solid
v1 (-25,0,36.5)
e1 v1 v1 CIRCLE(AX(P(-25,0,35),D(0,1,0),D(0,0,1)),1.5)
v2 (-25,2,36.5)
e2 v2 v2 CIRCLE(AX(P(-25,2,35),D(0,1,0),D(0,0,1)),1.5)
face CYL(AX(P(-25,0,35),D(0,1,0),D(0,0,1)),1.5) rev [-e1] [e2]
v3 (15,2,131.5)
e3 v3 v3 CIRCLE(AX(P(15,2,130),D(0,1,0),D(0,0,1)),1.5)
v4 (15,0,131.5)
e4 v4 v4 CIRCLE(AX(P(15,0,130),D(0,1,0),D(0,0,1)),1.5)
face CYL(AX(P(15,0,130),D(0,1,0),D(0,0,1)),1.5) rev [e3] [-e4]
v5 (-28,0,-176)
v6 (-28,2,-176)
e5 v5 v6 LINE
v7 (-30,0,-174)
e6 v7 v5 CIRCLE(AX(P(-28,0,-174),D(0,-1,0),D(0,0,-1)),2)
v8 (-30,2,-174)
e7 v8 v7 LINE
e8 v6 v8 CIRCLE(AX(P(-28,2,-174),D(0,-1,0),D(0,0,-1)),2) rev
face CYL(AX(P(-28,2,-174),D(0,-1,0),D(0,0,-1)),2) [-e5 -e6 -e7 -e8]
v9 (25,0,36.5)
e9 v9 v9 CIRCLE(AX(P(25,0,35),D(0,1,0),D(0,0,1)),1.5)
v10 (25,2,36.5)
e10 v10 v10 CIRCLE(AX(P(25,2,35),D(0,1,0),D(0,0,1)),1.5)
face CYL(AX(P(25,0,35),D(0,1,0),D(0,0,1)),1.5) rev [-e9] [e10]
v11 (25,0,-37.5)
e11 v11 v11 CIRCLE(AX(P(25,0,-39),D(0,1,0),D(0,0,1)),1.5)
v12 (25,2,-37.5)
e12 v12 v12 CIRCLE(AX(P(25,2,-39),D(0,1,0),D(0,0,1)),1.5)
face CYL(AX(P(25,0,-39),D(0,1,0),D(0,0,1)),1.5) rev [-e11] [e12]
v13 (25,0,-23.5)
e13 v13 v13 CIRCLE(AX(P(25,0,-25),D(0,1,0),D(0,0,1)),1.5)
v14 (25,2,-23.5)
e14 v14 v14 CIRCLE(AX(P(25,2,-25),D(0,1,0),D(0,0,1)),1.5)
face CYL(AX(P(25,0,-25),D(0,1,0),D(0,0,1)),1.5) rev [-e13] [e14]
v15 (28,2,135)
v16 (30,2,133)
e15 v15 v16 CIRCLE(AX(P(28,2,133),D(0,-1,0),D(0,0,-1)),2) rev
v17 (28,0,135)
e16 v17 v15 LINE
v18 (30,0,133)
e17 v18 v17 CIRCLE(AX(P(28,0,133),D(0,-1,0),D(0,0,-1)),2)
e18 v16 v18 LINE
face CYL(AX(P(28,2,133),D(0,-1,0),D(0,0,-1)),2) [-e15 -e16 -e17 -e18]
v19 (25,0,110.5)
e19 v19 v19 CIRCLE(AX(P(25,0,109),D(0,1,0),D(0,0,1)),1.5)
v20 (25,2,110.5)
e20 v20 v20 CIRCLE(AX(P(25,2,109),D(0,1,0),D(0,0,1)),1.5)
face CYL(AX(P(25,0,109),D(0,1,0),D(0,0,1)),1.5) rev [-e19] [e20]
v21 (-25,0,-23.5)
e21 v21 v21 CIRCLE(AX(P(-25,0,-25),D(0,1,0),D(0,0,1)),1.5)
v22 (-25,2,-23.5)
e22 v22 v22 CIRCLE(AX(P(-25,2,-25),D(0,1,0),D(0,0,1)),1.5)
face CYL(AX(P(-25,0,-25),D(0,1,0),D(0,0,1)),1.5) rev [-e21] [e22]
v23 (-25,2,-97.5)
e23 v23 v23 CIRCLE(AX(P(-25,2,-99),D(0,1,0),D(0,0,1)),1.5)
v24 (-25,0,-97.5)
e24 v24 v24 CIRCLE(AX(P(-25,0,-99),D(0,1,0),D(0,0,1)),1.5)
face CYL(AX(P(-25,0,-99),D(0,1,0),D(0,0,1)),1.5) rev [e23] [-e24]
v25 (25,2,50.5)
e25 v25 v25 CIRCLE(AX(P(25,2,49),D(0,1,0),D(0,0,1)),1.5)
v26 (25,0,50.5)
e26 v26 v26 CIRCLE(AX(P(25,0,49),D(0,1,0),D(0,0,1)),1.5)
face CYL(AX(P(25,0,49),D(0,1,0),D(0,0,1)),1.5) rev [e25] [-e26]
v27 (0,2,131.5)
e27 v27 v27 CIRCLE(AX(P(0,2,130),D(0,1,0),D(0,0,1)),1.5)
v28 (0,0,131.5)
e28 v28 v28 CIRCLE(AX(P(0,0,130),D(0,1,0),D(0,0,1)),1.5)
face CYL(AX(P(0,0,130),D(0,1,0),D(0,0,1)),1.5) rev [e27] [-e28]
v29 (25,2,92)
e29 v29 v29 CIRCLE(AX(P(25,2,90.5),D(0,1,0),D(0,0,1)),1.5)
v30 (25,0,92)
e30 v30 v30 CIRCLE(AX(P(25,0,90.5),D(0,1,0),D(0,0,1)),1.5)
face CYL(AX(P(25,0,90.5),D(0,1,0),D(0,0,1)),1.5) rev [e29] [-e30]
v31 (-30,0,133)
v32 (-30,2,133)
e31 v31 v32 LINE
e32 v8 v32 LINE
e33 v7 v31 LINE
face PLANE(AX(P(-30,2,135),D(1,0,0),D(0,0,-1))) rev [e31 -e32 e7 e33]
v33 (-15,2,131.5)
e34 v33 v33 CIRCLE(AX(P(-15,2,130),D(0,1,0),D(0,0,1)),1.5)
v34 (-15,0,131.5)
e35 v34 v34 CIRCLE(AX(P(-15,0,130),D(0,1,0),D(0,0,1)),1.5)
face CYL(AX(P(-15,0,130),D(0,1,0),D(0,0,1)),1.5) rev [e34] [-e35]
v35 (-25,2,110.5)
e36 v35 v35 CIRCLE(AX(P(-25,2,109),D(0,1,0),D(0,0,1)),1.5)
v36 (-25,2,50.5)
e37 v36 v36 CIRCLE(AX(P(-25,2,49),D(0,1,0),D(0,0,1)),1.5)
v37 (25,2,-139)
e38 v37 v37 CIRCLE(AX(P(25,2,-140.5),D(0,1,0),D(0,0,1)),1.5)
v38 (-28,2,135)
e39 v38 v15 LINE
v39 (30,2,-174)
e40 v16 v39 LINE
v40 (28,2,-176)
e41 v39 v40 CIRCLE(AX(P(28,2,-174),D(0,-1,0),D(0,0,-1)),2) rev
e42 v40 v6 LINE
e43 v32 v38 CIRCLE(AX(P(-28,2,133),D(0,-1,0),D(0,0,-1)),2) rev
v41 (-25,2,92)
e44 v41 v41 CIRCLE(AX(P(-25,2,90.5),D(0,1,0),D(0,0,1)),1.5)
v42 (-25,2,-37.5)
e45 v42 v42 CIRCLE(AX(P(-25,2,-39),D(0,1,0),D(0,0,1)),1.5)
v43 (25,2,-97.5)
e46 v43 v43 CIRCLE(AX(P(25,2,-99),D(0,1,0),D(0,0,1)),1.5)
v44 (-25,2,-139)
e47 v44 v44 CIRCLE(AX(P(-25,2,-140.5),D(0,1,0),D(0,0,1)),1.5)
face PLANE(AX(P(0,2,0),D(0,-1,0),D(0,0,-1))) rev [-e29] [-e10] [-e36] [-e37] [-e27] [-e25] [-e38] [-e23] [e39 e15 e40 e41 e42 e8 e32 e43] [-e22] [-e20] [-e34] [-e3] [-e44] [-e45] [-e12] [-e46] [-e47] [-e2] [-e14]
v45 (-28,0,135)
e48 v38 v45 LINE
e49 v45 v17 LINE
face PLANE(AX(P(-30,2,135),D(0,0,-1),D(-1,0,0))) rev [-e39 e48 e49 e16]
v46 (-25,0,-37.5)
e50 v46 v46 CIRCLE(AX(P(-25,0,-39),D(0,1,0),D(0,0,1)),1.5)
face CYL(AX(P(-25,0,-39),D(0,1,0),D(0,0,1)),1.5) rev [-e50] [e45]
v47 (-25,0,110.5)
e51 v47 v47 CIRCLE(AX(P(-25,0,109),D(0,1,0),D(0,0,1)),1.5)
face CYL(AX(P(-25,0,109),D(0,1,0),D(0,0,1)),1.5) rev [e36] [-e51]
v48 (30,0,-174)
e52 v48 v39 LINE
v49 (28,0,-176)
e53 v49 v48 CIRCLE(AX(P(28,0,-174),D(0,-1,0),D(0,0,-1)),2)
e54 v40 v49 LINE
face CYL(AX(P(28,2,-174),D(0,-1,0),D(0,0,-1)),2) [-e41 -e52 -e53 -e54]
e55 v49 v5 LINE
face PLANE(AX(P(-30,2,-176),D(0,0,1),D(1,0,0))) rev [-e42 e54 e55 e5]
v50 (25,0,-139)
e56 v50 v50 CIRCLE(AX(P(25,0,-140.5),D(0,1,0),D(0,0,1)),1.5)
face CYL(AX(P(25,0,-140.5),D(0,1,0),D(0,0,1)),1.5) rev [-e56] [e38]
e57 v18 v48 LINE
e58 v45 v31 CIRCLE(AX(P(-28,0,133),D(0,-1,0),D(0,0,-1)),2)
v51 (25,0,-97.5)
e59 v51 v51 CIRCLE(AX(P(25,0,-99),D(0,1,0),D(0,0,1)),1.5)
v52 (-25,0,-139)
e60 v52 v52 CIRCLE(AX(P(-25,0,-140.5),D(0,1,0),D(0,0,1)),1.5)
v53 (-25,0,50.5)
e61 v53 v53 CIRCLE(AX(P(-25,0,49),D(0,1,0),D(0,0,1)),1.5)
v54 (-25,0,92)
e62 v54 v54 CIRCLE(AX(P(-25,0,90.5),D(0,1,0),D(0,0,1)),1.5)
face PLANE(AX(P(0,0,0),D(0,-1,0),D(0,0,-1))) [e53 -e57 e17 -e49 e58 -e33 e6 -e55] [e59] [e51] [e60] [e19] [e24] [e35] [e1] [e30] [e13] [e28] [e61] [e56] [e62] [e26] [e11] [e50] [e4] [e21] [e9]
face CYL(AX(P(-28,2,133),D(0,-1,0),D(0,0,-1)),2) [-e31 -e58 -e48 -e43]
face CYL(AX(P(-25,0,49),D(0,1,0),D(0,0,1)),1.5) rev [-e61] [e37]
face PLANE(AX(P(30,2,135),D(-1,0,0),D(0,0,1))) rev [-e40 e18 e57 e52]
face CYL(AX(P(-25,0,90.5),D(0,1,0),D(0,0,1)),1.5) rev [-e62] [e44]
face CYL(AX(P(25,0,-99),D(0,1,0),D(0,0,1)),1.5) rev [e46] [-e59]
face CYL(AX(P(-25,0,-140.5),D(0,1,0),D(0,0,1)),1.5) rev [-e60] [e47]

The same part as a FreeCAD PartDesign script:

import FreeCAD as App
import Part
import Sketcher
from FreeCAD import Vector
Q = App.Units.Quantity


def edges_at(feature, points):
    """Names of the edges that pass closest to the given points."""
    edges = feature.Shape.Edges
    near = lambda p: min(range(len(edges)), key=lambda i: edges[i].distToShape(Part.Vertex(*p))[0])
    return sorted({f"Edge{near(p) + 1}" for p in points})


def add_polygon(sketch, points):
    """Adds a closed chain of lines whose ends are joined by coincident constraints."""
    first, n = sketch.GeometryCount, len(points)
    for a, b in zip(points, points[1:] + points[:1]):
        sketch.addGeometry(Part.LineSegment(App.Vector(*a, 0), App.Vector(*b, 0)), False)
    for i in range(n):
        sketch.addConstraint(Sketcher.Constraint("Coincident", first + i, 2, first + (i + 1) % n, 1))

doc = App.newDocument("Part")
body = doc.addObject("PartDesign::Body", "Body")

# Sketch on XZ plane
sketch1 = body.newObject("Sketcher::SketchObject", "Sketch")
sketch1.AttachmentSupport = (doc.getObject("XZ_Plane"), [""])
sketch1.MapMode = "FlatFace"
add_polygon(sketch1, [(-30, -176), (-30, 135), (30, 135), (30, -176)])  # lines 0-3
sketch1.addConstraint(Sketcher.Constraint("Vertical", 0))
sketch1.addConstraint(Sketcher.Constraint("Horizontal", 1))
sketch1.addConstraint(Sketcher.Constraint("Vertical", 2))
sketch1.addConstraint(Sketcher.Constraint("Horizontal", 3))
sketch1.addConstraint(Sketcher.Constraint("DistanceX", 1, 1, 1, 2, Q("60 mm")))
sketch1.addConstraint(Sketcher.Constraint("DistanceY", 0, 1, 0, 2, Q("311 mm")))
sketch1.addConstraint(Sketcher.Constraint("DistanceX", 0, 2, -1, 1, Q("30 mm")))
sketch1.addConstraint(Sketcher.Constraint("DistanceY", -1, 1, 0, 2, Q("135 mm")))
pad1 = body.newObject("PartDesign::Pad", "Pad")
pad1.Profile = sketch1
pad1.Length = 2
pad1.Reversed = True

# Sketch on XZ plane
sketch2 = body.newObject("Sketcher::SketchObject", "Sketch001")
sketch2.AttachmentSupport = (doc.getObject("XZ_Plane"), [""])
sketch2.MapMode = "FlatFace"
sketch2.AttachmentOffset = App.Placement(Vector(0, 0, -2), App.Rotation())
sketch2.addGeometry(Part.Circle(Vector(-25, -99, 0), Vector(0, 0, 1), 1.5), False)
sketch2.addGeometry(Part.Circle(Vector(25, -99, 0), Vector(0, 0, 1), 1.5), False)
sketch2.addGeometry(Part.Circle(Vector(25, -39, 0), Vector(0, 0, 1), 1.5), False)
sketch2.addGeometry(Part.Circle(Vector(-25, -39, 0), Vector(0, 0, 1), 1.5), False)
sketch2.addGeometry(Part.Circle(Vector(-25, -25, 0), Vector(0, 0, 1), 1.5), False)
sketch2.addGeometry(Part.Circle(Vector(25, -25, 0), Vector(0, 0, 1), 1.5), False)
sketch2.addGeometry(Part.Circle(Vector(-25, 35, 0), Vector(0, 0, 1), 1.5), False)
sketch2.addGeometry(Part.Circle(Vector(25, 35, 0), Vector(0, 0, 1), 1.5), False)
sketch2.addGeometry(Part.Circle(Vector(25, 49, 0), Vector(0, 0, 1), 1.5), False)
sketch2.addGeometry(Part.Circle(Vector(-25, 49, 0), Vector(0, 0, 1), 1.5), False)
sketch2.addGeometry(Part.Circle(Vector(25, 109, 0), Vector(0, 0, 1), 1.5), False)
sketch2.addGeometry(Part.Circle(Vector(-25, 109, 0), Vector(0, 0, 1), 1.5), False)
sketch2.addConstraint(Sketcher.Constraint("Equal", 0, 1))
sketch2.addConstraint(Sketcher.Constraint("Equal", 1, 2))
sketch2.addConstraint(Sketcher.Constraint("Equal", 2, 3))
sketch2.addConstraint(Sketcher.Constraint("Equal", 3, 4))
sketch2.addConstraint(Sketcher.Constraint("Equal", 4, 5))
sketch2.addConstraint(Sketcher.Constraint("Equal", 5, 6))
sketch2.addConstraint(Sketcher.Constraint("Equal", 6, 7))
sketch2.addConstraint(Sketcher.Constraint("Equal", 7, 8))
sketch2.addConstraint(Sketcher.Constraint("Equal", 8, 9))
sketch2.addConstraint(Sketcher.Constraint("Equal", 9, 10))
sketch2.addConstraint(Sketcher.Constraint("Equal", 10, 11))
sketch2.addConstraint(Sketcher.Constraint("Symmetric", 0, 3, 1, 3, -2))
sketch2.addConstraint(Sketcher.Constraint("Symmetric", 2, 3, 3, 3, -2))
sketch2.addConstraint(Sketcher.Constraint("Symmetric", 4, 3, 5, 3, -2))
sketch2.addConstraint(Sketcher.Constraint("Symmetric", 6, 3, 7, 3, -2))
sketch2.addConstraint(Sketcher.Constraint("Symmetric", 8, 3, 9, 3, -2))
sketch2.addConstraint(Sketcher.Constraint("Symmetric", 10, 3, 11, 3, -2))
sketch2.addConstraint(Sketcher.Constraint("Vertical", 1, 3, 2, 3))
sketch2.addConstraint(Sketcher.Constraint("Vertical", 3, 3, 4, 3))
sketch2.addConstraint(Sketcher.Constraint("Vertical", 4, 3, 6, 3))
sketch2.addConstraint(Sketcher.Constraint("Vertical", 7, 3, 8, 3))
sketch2.addConstraint(Sketcher.Constraint("Vertical", 8, 3, 10, 3))
sketch2.addConstraint(Sketcher.Constraint("Diameter", 0, Q("3 mm")))
sketch2.addConstraint(Sketcher.Constraint("DistanceX", 0, 3, -1, 1, Q("25 mm")))
sketch2.addConstraint(Sketcher.Constraint("DistanceY", 0, 3, -1, 1, Q("99 mm")))
sketch2.addConstraint(Sketcher.Constraint("DistanceY", 2, 3, -1, 1, Q("39 mm")))
sketch2.addConstraint(Sketcher.Constraint("DistanceY", 4, 3, -1, 1, Q("25 mm")))
sketch2.addConstraint(Sketcher.Constraint("DistanceY", -1, 1, 6, 3, Q("35 mm")))
sketch2.addConstraint(Sketcher.Constraint("DistanceY", -1, 1, 8, 3, Q("49 mm")))
sketch2.addConstraint(Sketcher.Constraint("DistanceY", -1, 1, 10, 3, Q("109 mm")))
pocket1 = body.newObject("PartDesign::Pocket", "Pocket")
pocket1.Profile = sketch2
pocket1.Type = "ThroughAll"
pocket1.Reversed = True

# Sketch on XZ plane
sketch3 = body.newObject("Sketcher::SketchObject", "Sketch002")
sketch3.AttachmentSupport = (doc.getObject("XZ_Plane"), [""])
sketch3.MapMode = "FlatFace"
sketch3.AttachmentOffset = App.Placement(Vector(0, 0, -2), App.Rotation())
sketch3.addGeometry(Part.Circle(Vector(-25, 90.5, 0), Vector(0, 0, 1), 1.5), False)
sketch3.addGeometry(Part.Circle(Vector(25, 90.5, 0), Vector(0, 0, 1), 1.5), False)
sketch3.addGeometry(Part.Circle(Vector(-25, -140.5, 0), Vector(0, 0, 1), 1.5), False)
sketch3.addGeometry(Part.Circle(Vector(25, -140.5, 0), Vector(0, 0, 1), 1.5), False)
sketch3.addConstraint(Sketcher.Constraint("Equal", 0, 1))
sketch3.addConstraint(Sketcher.Constraint("Equal", 1, 2))
sketch3.addConstraint(Sketcher.Constraint("Equal", 2, 3))
sketch3.addConstraint(Sketcher.Constraint("Symmetric", 0, 3, 1, 3, -2))
sketch3.addConstraint(Sketcher.Constraint("Symmetric", 2, 3, 3, 3, -2))
sketch3.addConstraint(Sketcher.Constraint("Vertical", 0, 3, 2, 3))
sketch3.addConstraint(Sketcher.Constraint("Diameter", 0, Q("3 mm")))
sketch3.addConstraint(Sketcher.Constraint("DistanceX", 0, 3, -1, 1, Q("25 mm")))
sketch3.addConstraint(Sketcher.Constraint("DistanceY", 2, 3, 0, 3, Q("231 mm")))
sketch3.addConstraint(Sketcher.Constraint("DistanceY", -1, 1, 0, 3, Q("90.5 mm")))
pocket2 = body.newObject("PartDesign::Pocket", "Pocket001")
pocket2.Profile = sketch3
pocket2.Type = "ThroughAll"
pocket2.Reversed = True

# Sketch on XZ plane
sketch4 = body.newObject("Sketcher::SketchObject", "Sketch003")
sketch4.AttachmentSupport = (doc.getObject("XZ_Plane"), [""])
sketch4.MapMode = "FlatFace"
sketch4.AttachmentOffset = App.Placement(Vector(0, 0, -2), App.Rotation())
sketch4.addGeometry(Part.Circle(Vector(-15, 130, 0), Vector(0, 0, 1), 1.5), False)
sketch4.addGeometry(Part.Circle(Vector(15, 130, 0), Vector(0, 0, 1), 1.5), False)
sketch4.addGeometry(Part.Circle(Vector(0, 130, 0), Vector(0, 0, 1), 1.5), False)
sketch4.addConstraint(Sketcher.Constraint("Equal", 0, 1))
sketch4.addConstraint(Sketcher.Constraint("Equal", 1, 2))
sketch4.addConstraint(Sketcher.Constraint("Symmetric", 0, 3, 1, 3, -2))
sketch4.addConstraint(Sketcher.Constraint("PointOnObject", 2, 3, -2))
sketch4.addConstraint(Sketcher.Constraint("Horizontal", 1, 3, 2, 3))
sketch4.addConstraint(Sketcher.Constraint("Diameter", 0, Q("3 mm")))
sketch4.addConstraint(Sketcher.Constraint("DistanceX", 0, 3, -1, 1, Q("15 mm")))
sketch4.addConstraint(Sketcher.Constraint("DistanceY", -1, 1, 0, 3, Q("130 mm")))
pocket3 = body.newObject("PartDesign::Pocket", "Pocket002")
pocket3.Profile = sketch4
pocket3.Type = "ThroughAll"
pocket3.Reversed = True
doc.recompute()

fillet = body.newObject("PartDesign::Fillet", "Fillet")
fillet.Base = (pocket3, edges_at(pocket3, [
    (-30, 1, -176),
    (30, 1, -176),
    (30, 1, 135),
    (-30, 1, 135),
]))
fillet.Radius = 2

doc.recompute()
